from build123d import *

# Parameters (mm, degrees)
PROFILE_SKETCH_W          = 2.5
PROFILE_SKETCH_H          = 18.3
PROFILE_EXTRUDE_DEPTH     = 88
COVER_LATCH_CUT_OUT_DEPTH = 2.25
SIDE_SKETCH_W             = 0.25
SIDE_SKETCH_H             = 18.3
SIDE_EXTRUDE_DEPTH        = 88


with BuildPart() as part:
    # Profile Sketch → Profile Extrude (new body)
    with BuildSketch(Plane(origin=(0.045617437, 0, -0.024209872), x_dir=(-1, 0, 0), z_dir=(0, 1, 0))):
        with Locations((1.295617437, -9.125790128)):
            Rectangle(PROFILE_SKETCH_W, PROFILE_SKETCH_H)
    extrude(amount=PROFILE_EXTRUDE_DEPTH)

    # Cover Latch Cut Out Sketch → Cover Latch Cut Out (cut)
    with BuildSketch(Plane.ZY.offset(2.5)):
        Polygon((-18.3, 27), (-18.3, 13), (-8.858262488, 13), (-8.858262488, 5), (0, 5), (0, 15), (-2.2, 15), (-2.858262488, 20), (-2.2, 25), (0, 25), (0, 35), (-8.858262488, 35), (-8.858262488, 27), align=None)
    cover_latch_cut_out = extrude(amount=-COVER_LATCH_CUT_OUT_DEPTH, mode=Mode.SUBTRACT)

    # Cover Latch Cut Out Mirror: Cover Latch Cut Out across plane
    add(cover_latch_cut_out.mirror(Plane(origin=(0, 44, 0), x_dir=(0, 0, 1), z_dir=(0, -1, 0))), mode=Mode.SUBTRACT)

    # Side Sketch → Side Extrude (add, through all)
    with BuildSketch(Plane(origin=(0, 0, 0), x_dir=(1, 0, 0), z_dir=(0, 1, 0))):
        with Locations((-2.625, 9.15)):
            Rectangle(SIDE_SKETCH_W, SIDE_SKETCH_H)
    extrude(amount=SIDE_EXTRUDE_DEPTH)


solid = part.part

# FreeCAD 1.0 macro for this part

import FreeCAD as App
import Part
import Sketcher
from FreeCAD import Vector
Q = App.Units.Quantity


def add_polygon(sketch, points):
    """Adds a closed chain of lines whose ends are joined by coincident constraints."""
    first, n = sketch.GeometryCount, len(points)
    for a, b in zip(points, points[1:] + points[:1]):
        sketch.addGeometry(Part.LineSegment(App.Vector(*a, 0), App.Vector(*b, 0)), False)
    for i in range(n):
        sketch.addConstraint(Sketcher.Constraint("Coincident", first + i, 2, first + (i + 1) % n, 1))

doc = App.newDocument("Part")
body = doc.addObject("PartDesign::Body", "Body")

# Sketch on XZ plane
sketch1 = body.newObject("Sketcher::SketchObject", "Sketch")
sketch1.AttachmentSupport = (doc.getObject("XZ_Plane"), [""])
sketch1.MapMode = "FlatFace"
add_polygon(sketch1, [(0, 0), (0, -18.3), (-2.5, -18.3), (-2.5, 0)])  # lines 0-3
sketch1.addConstraint([
    Sketcher.Constraint("Vertical", 0),
    Sketcher.Constraint("Horizontal", 1),
    Sketcher.Constraint("Vertical", 2),
    Sketcher.Constraint("Horizontal", 3),
    Sketcher.Constraint("Coincident", 3, 2, -1, 1),
    Sketcher.Constraint("DistanceX", 1, 2, 1, 1, Q("2.5 mm")),
    Sketcher.Constraint("DistanceY", 0, 2, 0, 1, Q("18.3 mm")),
])
pad1 = body.newObject("PartDesign::Pad", "Pad")
pad1.Profile = sketch1
pad1.Length = 88
pad1.Reversed = True

# Sketch on YZ plane
sketch2 = body.newObject("Sketcher::SketchObject", "Sketch001")
sketch2.AttachmentSupport = (doc.getObject("YZ_Plane"), [""])
sketch2.MapMode = "FlatFace"
sketch2.AttachmentOffset = App.Placement(Vector(0, 0, -2.5), App.Rotation())
add_polygon(sketch2, [(27, -18.3), (13, -18.3), (13, -8.9), (5, -8.9), (5, 0), (15, 0), (15, -2.2), (20, -2.9), (25, -2.2), (25, 0), (35, 0), (35, -8.9), (27, -8.9)])  # lines 0-12
sketch2.addConstraint([
    Sketcher.Constraint("Horizontal", 0),
    Sketcher.Constraint("Vertical", 1),
    Sketcher.Constraint("Horizontal", 2),
    Sketcher.Constraint("Vertical", 3),
    Sketcher.Constraint("Horizontal", 4),
    Sketcher.Constraint("Vertical", 5),
    Sketcher.Constraint("Vertical", 8),
    Sketcher.Constraint("Horizontal", 9),
    Sketcher.Constraint("Vertical", 10),
    Sketcher.Constraint("Horizontal", 11),
    Sketcher.Constraint("Vertical", 12),
    Sketcher.Constraint("PointOnObject", 3, 2, -1),
    Sketcher.Constraint("PointOnObject", 8, 2, -1),
    Sketcher.Constraint("Horizontal", 5, 2, 7, 2),
    Sketcher.Constraint("Horizontal", 2, 2, 10, 2),
    Sketcher.Constraint("Equal", 4, 9),
    Sketcher.Constraint("Equal", 2, 11),
    Sketcher.Constraint("Equal", 6, 7),
    Sketcher.Constraint("DistanceX", 0, 2, 0, 1, Q("14 mm")),
    Sketcher.Constraint("DistanceX", 2, 2, 2, 1, Q("8 mm")),
    Sketcher.Constraint("DistanceX", 4, 1, 4, 2, Q("10 mm")),
    Sketcher.Constraint("DistanceY", 5, 2, 5, 1, Q("2.2 mm")),
    Sketcher.Constraint("DistanceX", -1, 1, 0, 2, Q("13 mm")),
    Sketcher.Constraint("Angle", 6, Q("-7.5 deg")),
    Sketcher.Constraint("DistanceY", 1, 2, 6, 2, Q("6 mm")),
    Sketcher.Constraint("DistanceY", 0, 2, -1, 1, Q("18.3 mm")),
])
pocket1 = body.newObject("PartDesign::Pocket", "Pocket")
pocket1.Profile = sketch2
pocket1.Length = 2.25
pocket1.Reversed = True
doc.recompute()

datumplane = body.newObject("PartDesign::Plane", "DatumPlane")
datumplane.AttachmentSupport = (doc.getObject("XZ_Plane"), [""])
datumplane.MapMode = "FlatFace"
datumplane.AttachmentOffset = App.Placement(Vector(0, 0, -44), App.Rotation())
mirrored = body.newObject("PartDesign::Mirrored", "Mirrored")
mirrored.Originals = [pocket1]
mirrored.MirrorPlane = (datumplane, [""])
body.Tip = mirrored

# Sketch on XZ plane
sketch3 = body.newObject("Sketcher::SketchObject", "Sketch002")
sketch3.AttachmentSupport = (doc.getObject("XZ_Plane"), [""])
sketch3.MapMode = "FlatFace"
add_polygon(sketch3, [(-2.75, -18.3), (-2.75, 0), (-2.5, 0), (-2.5, -18.3)])  # lines 0-3
sketch3.addConstraint([
    Sketcher.Constraint("Vertical", 0),
    Sketcher.Constraint("Horizontal", 1),
    Sketcher.Constraint("Vertical", 2),
    Sketcher.Constraint("Horizontal", 3),
    Sketcher.Constraint("PointOnObject", 0, 2, -1),
    Sketcher.Constraint("DistanceY", 0, 1, 0, 2, Q("18.3 mm")),
    Sketcher.Constraint("DistanceX", 1, 1, 1, 2, Q("0.25 mm")),
    Sketcher.Constraint("DistanceX", 1, 2, -1, 1, Q("2.5 mm")),
])
pad2 = body.newObject("PartDesign::Pad", "Pad001")
pad2.Profile = sketch3
pad2.Length = 88
pad2.Reversed = True

doc.recompute()
